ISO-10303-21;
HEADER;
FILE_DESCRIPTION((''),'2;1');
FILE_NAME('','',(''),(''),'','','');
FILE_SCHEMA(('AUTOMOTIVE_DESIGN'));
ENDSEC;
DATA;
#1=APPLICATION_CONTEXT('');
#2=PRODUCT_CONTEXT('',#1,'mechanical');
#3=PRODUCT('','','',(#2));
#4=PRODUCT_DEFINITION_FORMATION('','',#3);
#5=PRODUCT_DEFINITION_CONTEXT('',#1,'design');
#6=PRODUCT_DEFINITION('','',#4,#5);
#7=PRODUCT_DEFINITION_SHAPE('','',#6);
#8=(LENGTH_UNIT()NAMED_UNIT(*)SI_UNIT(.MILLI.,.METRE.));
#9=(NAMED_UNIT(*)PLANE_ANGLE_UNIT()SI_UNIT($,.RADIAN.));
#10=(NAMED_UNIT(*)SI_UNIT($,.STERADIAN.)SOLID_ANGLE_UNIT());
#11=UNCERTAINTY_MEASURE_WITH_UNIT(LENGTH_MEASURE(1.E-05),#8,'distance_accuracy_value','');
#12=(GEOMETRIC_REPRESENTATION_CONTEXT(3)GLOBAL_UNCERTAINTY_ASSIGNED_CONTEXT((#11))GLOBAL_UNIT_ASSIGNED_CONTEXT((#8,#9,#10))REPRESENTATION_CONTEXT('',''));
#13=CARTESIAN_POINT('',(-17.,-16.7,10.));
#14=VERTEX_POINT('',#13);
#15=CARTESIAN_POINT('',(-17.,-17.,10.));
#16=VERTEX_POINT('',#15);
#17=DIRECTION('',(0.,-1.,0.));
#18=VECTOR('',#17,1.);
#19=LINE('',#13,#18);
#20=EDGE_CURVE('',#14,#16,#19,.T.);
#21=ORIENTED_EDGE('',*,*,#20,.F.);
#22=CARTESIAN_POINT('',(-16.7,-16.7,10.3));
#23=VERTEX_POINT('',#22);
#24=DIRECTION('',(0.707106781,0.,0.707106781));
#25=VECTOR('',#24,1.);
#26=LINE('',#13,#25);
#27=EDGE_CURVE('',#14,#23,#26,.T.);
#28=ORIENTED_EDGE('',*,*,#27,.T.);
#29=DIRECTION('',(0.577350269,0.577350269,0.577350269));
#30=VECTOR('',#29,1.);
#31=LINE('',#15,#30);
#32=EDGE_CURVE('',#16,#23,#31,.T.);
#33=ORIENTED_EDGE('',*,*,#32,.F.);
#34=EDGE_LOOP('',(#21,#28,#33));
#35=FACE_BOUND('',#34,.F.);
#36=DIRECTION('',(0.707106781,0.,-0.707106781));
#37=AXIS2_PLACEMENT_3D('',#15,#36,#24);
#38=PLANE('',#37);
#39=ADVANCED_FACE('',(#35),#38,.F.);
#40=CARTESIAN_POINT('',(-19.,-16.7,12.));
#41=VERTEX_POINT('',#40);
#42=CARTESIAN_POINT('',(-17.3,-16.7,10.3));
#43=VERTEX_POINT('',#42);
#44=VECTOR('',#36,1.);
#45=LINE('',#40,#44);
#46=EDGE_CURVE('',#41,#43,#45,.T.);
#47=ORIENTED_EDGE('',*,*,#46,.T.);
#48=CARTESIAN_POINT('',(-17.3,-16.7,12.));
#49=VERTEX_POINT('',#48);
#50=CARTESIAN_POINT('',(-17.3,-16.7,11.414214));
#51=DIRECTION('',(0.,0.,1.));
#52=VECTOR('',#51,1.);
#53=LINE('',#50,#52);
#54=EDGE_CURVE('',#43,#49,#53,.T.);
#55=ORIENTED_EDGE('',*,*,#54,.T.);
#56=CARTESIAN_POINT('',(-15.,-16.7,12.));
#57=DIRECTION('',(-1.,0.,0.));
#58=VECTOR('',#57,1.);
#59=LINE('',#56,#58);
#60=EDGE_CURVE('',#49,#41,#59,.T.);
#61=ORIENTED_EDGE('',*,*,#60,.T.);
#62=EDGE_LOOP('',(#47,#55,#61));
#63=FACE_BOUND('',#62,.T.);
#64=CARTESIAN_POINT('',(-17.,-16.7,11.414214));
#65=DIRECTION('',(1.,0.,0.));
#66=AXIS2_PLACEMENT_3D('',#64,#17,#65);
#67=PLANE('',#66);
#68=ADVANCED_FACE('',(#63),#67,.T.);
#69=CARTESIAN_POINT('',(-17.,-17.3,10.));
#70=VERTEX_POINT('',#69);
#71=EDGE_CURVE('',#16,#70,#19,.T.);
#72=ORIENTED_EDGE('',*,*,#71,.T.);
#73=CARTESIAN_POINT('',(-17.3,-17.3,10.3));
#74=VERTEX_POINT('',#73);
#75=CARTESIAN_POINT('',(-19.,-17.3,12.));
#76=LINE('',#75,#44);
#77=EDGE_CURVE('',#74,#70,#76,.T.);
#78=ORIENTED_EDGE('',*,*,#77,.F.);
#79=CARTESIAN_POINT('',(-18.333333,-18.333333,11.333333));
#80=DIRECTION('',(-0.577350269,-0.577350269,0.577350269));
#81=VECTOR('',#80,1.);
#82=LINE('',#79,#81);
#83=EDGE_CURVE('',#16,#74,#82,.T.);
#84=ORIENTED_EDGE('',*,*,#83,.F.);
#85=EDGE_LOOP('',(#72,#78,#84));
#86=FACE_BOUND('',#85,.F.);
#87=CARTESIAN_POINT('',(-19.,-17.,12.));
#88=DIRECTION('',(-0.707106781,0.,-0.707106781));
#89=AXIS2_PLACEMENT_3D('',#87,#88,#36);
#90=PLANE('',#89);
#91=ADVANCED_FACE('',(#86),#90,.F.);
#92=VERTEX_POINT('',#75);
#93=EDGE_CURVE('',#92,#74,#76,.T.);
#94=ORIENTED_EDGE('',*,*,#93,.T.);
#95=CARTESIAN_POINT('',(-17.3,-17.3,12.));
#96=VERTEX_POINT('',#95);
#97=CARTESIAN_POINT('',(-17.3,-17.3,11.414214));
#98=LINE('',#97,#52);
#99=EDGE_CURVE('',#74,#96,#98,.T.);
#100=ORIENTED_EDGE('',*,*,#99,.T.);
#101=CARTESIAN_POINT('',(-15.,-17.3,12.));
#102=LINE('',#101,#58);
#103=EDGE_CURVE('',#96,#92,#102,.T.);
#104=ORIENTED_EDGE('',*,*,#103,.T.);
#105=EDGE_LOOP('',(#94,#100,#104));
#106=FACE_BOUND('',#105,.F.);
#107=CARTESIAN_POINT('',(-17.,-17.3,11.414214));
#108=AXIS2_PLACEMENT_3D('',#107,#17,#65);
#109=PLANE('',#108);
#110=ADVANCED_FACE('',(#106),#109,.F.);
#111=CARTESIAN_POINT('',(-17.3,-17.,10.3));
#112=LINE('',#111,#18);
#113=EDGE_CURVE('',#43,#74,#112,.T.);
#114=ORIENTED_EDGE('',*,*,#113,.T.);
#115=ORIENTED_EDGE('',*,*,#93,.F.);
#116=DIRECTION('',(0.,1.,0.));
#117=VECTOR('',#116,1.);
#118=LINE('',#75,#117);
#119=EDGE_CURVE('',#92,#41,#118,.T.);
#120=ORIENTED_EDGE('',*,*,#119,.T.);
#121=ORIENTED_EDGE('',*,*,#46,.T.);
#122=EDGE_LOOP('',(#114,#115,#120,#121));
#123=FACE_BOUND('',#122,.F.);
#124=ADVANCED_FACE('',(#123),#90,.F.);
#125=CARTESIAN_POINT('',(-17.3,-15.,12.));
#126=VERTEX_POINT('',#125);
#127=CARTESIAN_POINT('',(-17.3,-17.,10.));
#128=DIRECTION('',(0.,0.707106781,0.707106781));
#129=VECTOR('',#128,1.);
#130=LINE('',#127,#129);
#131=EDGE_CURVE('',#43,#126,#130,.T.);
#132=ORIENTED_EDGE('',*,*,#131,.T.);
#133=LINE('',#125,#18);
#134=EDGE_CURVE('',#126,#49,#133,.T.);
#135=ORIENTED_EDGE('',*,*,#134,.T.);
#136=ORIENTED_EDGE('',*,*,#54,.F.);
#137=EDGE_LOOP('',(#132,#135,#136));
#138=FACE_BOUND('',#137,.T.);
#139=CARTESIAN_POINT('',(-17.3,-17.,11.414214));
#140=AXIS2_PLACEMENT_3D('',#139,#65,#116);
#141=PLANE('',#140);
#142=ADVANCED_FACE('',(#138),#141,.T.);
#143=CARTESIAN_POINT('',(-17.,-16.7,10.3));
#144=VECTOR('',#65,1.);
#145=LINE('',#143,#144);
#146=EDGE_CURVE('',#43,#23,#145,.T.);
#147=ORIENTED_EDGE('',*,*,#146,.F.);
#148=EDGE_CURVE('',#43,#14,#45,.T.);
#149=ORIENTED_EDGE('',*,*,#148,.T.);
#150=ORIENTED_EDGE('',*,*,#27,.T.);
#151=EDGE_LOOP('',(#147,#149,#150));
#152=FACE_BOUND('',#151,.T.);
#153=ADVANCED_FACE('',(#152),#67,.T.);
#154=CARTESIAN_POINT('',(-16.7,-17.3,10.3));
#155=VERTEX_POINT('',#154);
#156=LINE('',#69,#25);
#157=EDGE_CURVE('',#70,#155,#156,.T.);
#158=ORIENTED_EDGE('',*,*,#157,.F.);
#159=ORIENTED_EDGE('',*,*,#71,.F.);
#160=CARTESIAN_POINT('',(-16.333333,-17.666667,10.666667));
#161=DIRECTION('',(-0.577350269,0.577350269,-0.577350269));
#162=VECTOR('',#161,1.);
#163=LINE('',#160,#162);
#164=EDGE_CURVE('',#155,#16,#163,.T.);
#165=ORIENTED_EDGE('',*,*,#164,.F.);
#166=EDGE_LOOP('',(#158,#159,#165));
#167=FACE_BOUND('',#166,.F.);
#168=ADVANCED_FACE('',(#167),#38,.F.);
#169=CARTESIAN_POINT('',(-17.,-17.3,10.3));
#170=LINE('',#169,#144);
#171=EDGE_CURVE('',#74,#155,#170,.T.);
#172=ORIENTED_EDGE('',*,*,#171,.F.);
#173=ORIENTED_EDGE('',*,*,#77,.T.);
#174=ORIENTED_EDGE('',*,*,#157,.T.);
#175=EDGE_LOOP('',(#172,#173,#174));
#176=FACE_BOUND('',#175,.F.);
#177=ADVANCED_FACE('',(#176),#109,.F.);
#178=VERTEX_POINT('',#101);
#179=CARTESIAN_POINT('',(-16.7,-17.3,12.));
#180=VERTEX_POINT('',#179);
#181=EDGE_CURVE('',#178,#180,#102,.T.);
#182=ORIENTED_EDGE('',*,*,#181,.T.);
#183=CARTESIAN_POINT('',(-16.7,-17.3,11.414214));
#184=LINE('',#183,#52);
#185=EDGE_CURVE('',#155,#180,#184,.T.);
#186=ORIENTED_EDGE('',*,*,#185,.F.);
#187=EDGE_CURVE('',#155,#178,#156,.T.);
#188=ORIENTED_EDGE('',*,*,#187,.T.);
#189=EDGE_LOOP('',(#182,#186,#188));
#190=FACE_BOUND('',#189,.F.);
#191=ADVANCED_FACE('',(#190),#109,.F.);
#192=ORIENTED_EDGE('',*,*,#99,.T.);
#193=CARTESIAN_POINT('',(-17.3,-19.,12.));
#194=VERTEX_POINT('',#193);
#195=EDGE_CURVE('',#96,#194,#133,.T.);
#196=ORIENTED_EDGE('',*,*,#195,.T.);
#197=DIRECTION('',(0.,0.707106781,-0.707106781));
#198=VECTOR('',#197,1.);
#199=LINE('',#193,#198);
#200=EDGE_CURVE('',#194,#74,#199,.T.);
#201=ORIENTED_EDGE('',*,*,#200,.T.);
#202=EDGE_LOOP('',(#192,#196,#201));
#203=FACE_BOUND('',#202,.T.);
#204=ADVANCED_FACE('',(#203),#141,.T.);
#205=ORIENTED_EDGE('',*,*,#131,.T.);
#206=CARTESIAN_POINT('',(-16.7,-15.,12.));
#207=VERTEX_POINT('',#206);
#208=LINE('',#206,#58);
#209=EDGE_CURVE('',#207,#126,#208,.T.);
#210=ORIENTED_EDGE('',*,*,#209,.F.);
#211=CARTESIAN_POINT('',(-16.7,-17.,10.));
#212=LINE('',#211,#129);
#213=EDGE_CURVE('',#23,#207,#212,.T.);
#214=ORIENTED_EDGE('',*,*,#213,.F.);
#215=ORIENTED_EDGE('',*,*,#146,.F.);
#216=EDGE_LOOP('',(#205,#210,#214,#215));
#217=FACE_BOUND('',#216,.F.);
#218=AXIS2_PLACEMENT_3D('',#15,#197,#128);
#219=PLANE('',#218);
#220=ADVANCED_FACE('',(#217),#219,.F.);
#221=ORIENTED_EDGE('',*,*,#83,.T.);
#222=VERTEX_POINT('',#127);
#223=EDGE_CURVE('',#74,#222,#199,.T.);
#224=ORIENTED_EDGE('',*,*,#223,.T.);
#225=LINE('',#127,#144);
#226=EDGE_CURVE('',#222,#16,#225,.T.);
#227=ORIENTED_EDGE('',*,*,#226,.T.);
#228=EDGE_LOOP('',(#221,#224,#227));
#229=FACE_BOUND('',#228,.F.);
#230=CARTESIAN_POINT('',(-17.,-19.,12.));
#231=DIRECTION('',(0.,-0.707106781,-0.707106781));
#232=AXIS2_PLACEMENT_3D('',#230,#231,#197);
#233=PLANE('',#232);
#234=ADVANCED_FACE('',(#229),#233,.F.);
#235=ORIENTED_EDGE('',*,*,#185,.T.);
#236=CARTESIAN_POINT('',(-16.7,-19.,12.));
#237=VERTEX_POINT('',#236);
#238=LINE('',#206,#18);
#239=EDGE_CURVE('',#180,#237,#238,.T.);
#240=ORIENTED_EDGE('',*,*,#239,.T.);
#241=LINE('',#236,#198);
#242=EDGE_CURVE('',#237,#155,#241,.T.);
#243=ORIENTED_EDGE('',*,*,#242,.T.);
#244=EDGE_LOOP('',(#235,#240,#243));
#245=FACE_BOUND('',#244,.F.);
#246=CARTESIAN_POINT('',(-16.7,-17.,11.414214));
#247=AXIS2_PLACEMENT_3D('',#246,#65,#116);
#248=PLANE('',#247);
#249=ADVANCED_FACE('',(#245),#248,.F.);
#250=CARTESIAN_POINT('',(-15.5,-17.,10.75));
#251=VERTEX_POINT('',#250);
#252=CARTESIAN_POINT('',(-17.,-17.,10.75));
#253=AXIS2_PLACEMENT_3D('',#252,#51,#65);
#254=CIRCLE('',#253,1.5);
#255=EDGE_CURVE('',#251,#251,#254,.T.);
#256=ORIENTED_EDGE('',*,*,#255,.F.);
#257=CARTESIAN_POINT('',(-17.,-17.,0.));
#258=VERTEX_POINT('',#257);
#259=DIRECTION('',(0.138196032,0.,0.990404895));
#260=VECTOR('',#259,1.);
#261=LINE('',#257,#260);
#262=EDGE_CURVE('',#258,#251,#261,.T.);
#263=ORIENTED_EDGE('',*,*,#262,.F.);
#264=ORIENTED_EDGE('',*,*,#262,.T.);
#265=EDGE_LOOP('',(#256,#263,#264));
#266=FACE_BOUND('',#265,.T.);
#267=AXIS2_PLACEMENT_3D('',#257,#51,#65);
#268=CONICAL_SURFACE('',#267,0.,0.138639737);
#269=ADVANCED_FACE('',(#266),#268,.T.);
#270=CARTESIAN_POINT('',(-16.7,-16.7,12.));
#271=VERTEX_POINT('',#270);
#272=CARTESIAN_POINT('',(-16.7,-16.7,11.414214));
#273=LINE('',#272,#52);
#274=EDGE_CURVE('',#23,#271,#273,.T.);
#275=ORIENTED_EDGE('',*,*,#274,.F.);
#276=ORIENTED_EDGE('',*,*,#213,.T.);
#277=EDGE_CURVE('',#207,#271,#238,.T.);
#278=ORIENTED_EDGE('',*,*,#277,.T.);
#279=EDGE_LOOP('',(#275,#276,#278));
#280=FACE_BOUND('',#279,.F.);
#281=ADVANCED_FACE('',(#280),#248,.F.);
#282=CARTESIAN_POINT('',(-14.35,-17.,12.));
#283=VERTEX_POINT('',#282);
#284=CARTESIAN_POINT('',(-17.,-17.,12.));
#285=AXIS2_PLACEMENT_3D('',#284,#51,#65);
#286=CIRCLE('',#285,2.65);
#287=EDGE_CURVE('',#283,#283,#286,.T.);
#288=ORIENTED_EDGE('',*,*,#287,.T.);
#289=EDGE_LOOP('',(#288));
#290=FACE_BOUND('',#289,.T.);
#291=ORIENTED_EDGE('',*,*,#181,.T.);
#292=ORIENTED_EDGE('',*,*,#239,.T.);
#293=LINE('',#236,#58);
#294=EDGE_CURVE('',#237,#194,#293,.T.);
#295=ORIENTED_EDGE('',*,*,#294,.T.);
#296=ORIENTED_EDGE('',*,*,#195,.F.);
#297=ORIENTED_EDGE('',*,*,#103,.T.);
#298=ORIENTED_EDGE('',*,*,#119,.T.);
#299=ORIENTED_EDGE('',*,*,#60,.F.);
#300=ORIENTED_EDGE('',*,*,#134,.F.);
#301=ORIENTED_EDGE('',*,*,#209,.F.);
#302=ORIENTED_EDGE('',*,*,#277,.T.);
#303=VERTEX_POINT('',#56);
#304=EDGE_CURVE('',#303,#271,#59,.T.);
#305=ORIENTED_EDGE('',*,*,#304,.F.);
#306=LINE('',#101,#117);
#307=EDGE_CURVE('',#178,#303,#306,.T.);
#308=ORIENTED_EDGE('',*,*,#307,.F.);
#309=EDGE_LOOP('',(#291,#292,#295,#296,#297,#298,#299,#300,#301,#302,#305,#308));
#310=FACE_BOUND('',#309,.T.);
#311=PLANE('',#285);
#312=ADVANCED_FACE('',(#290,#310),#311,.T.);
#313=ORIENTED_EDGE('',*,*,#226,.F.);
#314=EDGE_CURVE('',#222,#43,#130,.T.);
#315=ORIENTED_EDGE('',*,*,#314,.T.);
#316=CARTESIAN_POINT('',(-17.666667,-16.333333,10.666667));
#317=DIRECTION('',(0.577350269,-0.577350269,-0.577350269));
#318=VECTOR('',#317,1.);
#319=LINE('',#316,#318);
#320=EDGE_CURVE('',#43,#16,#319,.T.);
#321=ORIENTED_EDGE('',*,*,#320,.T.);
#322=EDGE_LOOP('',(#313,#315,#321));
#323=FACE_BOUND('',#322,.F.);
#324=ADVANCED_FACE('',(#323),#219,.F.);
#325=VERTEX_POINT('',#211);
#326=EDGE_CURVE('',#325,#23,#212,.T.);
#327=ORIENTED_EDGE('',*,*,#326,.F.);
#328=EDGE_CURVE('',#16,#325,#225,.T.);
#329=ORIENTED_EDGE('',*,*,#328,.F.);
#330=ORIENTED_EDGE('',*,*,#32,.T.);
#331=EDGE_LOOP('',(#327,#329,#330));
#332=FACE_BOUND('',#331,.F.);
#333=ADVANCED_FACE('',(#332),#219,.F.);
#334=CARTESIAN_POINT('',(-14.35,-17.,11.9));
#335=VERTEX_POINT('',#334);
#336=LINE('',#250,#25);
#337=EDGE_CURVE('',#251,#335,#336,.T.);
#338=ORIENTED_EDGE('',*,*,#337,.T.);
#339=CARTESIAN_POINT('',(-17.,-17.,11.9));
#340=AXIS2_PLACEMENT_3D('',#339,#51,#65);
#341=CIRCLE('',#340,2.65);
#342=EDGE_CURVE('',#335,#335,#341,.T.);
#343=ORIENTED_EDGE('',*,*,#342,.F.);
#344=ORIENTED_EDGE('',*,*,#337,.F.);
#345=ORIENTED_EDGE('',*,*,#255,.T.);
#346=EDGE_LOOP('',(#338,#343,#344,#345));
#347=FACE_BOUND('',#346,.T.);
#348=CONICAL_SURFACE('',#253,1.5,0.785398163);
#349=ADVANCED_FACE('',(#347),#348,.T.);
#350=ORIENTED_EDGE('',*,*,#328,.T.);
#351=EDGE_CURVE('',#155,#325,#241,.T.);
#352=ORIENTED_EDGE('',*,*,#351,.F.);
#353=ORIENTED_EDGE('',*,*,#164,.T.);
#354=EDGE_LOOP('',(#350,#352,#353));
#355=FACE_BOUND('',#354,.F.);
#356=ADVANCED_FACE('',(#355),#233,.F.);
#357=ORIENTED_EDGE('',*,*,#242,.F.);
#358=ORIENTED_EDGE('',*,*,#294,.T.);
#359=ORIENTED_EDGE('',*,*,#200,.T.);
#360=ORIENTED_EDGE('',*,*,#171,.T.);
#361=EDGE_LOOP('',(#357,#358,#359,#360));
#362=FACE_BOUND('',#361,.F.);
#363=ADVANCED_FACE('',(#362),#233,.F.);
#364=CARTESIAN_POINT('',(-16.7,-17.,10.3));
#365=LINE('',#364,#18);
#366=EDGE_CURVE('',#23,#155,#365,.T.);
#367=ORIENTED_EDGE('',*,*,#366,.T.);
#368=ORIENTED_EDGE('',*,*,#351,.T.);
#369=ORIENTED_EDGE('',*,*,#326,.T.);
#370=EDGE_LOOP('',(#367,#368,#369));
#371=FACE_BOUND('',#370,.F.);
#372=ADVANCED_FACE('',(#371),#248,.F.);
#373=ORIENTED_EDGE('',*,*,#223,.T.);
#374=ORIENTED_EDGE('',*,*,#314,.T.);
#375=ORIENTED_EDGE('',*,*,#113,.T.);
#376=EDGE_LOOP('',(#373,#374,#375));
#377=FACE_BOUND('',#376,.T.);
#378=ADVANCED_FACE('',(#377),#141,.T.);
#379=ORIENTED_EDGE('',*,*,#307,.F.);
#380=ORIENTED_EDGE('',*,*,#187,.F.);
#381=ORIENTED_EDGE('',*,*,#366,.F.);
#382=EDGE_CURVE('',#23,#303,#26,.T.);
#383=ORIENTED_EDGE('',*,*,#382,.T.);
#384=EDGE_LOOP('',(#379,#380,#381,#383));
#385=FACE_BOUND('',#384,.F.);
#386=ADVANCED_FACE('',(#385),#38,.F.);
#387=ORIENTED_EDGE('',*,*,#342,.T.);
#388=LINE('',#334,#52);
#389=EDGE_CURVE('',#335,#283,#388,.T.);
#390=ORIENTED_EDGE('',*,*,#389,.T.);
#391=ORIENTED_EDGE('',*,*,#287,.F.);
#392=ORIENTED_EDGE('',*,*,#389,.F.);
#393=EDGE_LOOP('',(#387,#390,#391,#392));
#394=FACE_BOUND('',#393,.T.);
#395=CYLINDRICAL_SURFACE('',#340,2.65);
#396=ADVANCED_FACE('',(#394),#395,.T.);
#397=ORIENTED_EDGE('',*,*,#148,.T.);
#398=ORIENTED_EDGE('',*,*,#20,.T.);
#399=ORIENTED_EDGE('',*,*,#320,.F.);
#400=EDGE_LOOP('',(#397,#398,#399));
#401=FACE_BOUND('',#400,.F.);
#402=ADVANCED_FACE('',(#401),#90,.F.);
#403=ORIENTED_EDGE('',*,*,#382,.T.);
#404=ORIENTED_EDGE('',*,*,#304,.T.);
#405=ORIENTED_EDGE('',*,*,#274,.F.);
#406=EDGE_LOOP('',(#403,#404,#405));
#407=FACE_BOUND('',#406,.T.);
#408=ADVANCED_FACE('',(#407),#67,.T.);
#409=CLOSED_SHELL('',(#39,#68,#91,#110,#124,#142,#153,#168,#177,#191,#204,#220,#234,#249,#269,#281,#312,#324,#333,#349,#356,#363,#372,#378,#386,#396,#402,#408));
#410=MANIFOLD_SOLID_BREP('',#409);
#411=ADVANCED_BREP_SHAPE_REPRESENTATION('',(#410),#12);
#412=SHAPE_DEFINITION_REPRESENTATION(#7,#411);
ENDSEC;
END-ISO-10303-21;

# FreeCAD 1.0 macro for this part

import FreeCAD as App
import Part
import Sketcher
from FreeCAD import Vector
Q = App.Units.Quantity


def add_polygon(sketch, points):
    """Adds a closed chain of lines whose ends are joined by coincident constraints."""
    first, n = sketch.GeometryCount, len(points)
    for a, b in zip(points, points[1:] + points[:1]):
        sketch.addGeometry(Part.LineSegment(App.Vector(*a, 0), App.Vector(*b, 0)), False)
    for i in range(n):
        sketch.addConstraint(Sketcher.Constraint("Coincident", first + i, 2, first + (i + 1) % n, 1))

doc = App.newDocument("Part")
params = doc.addObject("Spreadsheet::Sheet", "Params")
for row, (alias, value) in enumerate([
    ("sketch1_height", "12 mm"),
    ("sketch1_height2", "0.1 mm"),
    ("sketch1_width", "2.65 mm"),
    ("revolution_angle", "360 deg"),
    ("sketch2_width", "4 mm"),
    ("pocket1_length", "0.6 mm"),
], start=1):
    params.set(f"A{row}", alias)
    params.set(f"B{row}", "=" + value)
    params.setAlias(f"B{row}", alias)

body = doc.addObject("PartDesign::Body", "Body")

# Sketch on XZ plane
sketch1 = doc.addObject("Sketcher::SketchObject", "Sketch")
body.addObject(sketch1)
sketch1.AttachmentSupport = (doc.XZ_Plane, [""])
sketch1.MapMode = "FlatFace"
add_polygon(sketch1, [(0, 0), (0, -12), (1.5, -1.25), (2.65, -0.1), (2.65, 0)])  # lines 0-4
sketch1.addConstraint(Sketcher.Constraint("Vertical", 0))
sketch1.addConstraint(Sketcher.Constraint("Vertical", 3))
sketch1.addConstraint(Sketcher.Constraint("Horizontal", 4))
sketch1.addConstraint(Sketcher.Constraint("Coincident", 4, 2, -1, 1))
sketch1.addConstraint(Sketcher.Constraint("DistanceY", 0, 2, 0, 1, Q("12 mm")))
sketch1.addConstraint(Sketcher.Constraint("Angle", 2, Q("45 deg")))
sketch1.addConstraint(Sketcher.Constraint("DistanceY", 3, 1, 3, 2, Q("0.1 mm")))
sketch1.addConstraint(Sketcher.Constraint("DistanceX", 4, 2, 4, 1, Q("2.65 mm")))
sketch1.addConstraint(Sketcher.Constraint("DistanceX", -1, 1, 1, 2, Q("1.5 mm")))
sketch1.setExpression("Constraints[9]", "Params.sketch1_height")
sketch1.setExpression("Constraints[11]", "Params.sketch1_height2")
sketch1.setExpression("Constraints[12]", "Params.sketch1_width")
revolution = doc.addObject("PartDesign::Revolution", "Revolution")
body.addObject(revolution)
revolution.Profile = sketch1
revolution.ReferenceAxis = (sketch1, ["V_Axis"])
revolution.setExpression("Angle", "Params.revolution_angle")

# Sketch on XZ plane
sketch2 = doc.addObject("Sketcher::SketchObject", "Sketch001")
body.addObject(sketch2)
sketch2.AttachmentSupport = (doc.XZ_Plane, [""])
sketch2.MapMode = "FlatFace"
add_polygon(sketch2, [(-2, 0), (0, -2), (2, 0)])  # lines 0-2
sketch2.addConstraint(Sketcher.Constraint("Horizontal", 2))
sketch2.addConstraint(Sketcher.Constraint("Symmetric", 1, 2, 2, 2, -1, 1))
sketch2.addConstraint(Sketcher.Constraint("PointOnObject", 0, 2, -2))
sketch2.addConstraint(Sketcher.Constraint("Perpendicular", 0, 1))
sketch2.addConstraint(Sketcher.Constraint("DistanceX", 2, 2, 2, 1, Q("4 mm")))
sketch2.setExpression("Constraints[7]", "Params.sketch2_width")
pocket1 = doc.addObject("PartDesign::Pocket", "Pocket")
body.addObject(pocket1)
pocket1.Profile = sketch2
pocket1.setExpression("Length", "Params.pocket1_length")
pocket1.Midplane = True
doc.recompute()

polarpattern = doc.addObject("PartDesign::PolarPattern", "PolarPattern")
body.addObject(polarpattern)
polarpattern.Originals = [pocket1]
polarpattern.Axis = (doc.Z_Axis, [""])
polarpattern.Angle = 90
polarpattern.Occurrences = 2
body.Tip = polarpattern
body2 = doc.addObject("PartDesign::Body", "Body001")
doc.recompute()

body.Placement = App.Placement(Vector(-17, -17, 12), App.Rotation(Vector(0, 0, 1), 0))
boolean = doc.addObject("PartDesign::Boolean", "Boolean")
body2.addObject(boolean)
boolean.Type = "Fuse"
boolean.addObjects([body])

doc.recompute()
